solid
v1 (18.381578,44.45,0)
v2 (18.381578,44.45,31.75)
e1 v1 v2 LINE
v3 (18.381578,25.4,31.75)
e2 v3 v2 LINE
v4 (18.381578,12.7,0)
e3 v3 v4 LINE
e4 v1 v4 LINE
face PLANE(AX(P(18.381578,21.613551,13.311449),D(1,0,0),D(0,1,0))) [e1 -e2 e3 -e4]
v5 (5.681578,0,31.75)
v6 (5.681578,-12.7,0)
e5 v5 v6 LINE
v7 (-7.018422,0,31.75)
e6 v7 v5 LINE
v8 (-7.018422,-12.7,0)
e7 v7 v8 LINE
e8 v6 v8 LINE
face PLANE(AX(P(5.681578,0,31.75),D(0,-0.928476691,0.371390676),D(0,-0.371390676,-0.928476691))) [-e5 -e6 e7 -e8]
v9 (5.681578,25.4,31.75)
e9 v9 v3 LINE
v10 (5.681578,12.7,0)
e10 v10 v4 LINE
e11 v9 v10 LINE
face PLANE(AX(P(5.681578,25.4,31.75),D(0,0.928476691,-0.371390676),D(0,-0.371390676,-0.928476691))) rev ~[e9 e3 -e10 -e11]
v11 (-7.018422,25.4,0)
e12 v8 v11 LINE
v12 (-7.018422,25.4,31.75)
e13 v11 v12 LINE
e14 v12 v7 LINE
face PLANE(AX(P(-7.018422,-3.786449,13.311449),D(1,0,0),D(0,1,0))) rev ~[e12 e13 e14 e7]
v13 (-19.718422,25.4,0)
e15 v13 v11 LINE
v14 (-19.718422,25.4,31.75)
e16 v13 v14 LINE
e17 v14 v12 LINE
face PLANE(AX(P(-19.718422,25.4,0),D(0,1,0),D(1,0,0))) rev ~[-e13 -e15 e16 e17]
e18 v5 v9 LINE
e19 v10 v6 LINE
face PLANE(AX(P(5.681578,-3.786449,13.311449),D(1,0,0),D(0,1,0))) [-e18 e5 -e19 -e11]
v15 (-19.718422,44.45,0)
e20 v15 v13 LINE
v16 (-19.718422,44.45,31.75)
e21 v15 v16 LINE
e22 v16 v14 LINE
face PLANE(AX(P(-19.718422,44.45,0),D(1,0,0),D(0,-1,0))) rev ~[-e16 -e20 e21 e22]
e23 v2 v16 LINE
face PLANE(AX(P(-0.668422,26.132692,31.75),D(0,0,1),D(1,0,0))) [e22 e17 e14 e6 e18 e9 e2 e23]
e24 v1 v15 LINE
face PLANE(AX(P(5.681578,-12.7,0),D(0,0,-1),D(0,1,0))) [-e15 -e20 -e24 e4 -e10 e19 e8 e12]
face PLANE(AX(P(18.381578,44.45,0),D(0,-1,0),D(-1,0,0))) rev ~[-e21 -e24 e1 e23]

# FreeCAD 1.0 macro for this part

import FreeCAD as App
import Part
import Sketcher

V = App.Vector
Q = App.Units.Quantity


def add_polygon(sketch, points):
    """Adds a closed chain of lines whose ends are joined by coincident constraints."""
    first, n = sketch.GeometryCount, len(points)
    for a, b in zip(points, points[1:] + points[:1]):
        sketch.addGeometry(Part.LineSegment(App.Vector(*a, 0), App.Vector(*b, 0)), False)
    for i in range(n):
        sketch.addConstraint(Sketcher.Constraint("Coincident", first + i, 2, first + (i + 1) % n, 1))

doc = App.newDocument("Part")
body = doc.addObject("PartDesign::Body", "Body")

# Sketch on XY plane
sketch1 = body.newObject("Sketcher::SketchObject", "Sketch")
sketch1.AttachmentSupport = (doc.getObject("XY_Plane"), [""])
sketch1.MapMode = "FlatFace"
add_polygon(sketch1, [(18, 44), (-20, 44), (-20, 25), (-7, 25), (-7, 0), (6, 0), (6, 25), (18, 25)])  # lines 0-7
sketch1.addConstraint([
    Sketcher.Constraint("Horizontal", 0),
    Sketcher.Constraint("Vertical", 1),
    Sketcher.Constraint("Horizontal", 2),
    Sketcher.Constraint("Vertical", 3),
    Sketcher.Constraint("Horizontal", 4),
    Sketcher.Constraint("Vertical", 5),
    Sketcher.Constraint("Horizontal", 6),
    Sketcher.Constraint("Vertical", 7),
    Sketcher.Constraint("PointOnObject", 3, 2, -1),
    Sketcher.Constraint("Horizontal", 2, 2, 5, 2),
    Sketcher.Constraint("Equal", 2, 4),
    Sketcher.Constraint("Equal", 4, 6),
    Sketcher.Constraint("DistanceY", 3, 2, 3, 1, Q("1 in")),
    Sketcher.Constraint("DistanceX", 0, 2, 0, 1, Q("1.5 in")),
    Sketcher.Constraint("DistanceY", 1, 2, 1, 1, Q("0.75 in")),
    Sketcher.Constraint("DistanceX", -1, 1, 6, 2, 18.381578),
])
pad1 = body.newObject("PartDesign::Pad", "Pad")
pad1.Profile = sketch1
pad1.Length = Q("1.25 in")

# Sketch on YZ plane
sketch2 = body.newObject("Sketcher::SketchObject", "Sketch001")
sketch2.AttachmentSupport = (doc.getObject("YZ_Plane"), [""])
sketch2.MapMode = "FlatFace"
sketch2.AttachmentOffset = App.Placement(V(0, 0, 5.681578), App.Rotation())
add_polygon(sketch2, [(13, 0), (25, 0), (25, 32)])  # lines 0-2
sketch2.addConstraint([
    Sketcher.Constraint("Horizontal", 0),
    Sketcher.Constraint("Vertical", 1),
    Sketcher.Constraint("PointOnObject", 0, 2, -1),
    Sketcher.Constraint("DistanceX", 0, 1, 0, 2, Q("0.5 in")),
    Sketcher.Constraint("DistanceX", -1, 1, 0, 2, Q("1 in")),
    Sketcher.Constraint("DistanceY", 1, 1, 1, 2, Q("1.25 in")),
])
pad2 = body.newObject("PartDesign::Pad", "Pad001")
pad2.Profile = sketch2
pad2.Length = Q("0.5 in")

# Sketch on YZ plane
sketch3 = body.newObject("Sketcher::SketchObject", "Sketch002")
sketch3.AttachmentSupport = (doc.getObject("YZ_Plane"), [""])
sketch3.MapMode = "FlatFace"
sketch3.AttachmentOffset = App.Placement(V(0, 0, 5.681578), App.Rotation())
add_polygon(sketch3, [(-13, 0), (0, 0), (0, 32)])  # lines 0-2
sketch3.addConstraint([
    Sketcher.Constraint("Horizontal", 0),
    Sketcher.Constraint("Vertical", 1),
    Sketcher.Constraint("Coincident", 0, 2, -1, 1),
    Sketcher.Constraint("DistanceX", 0, 1, 0, 2, Q("0.5 in")),
    Sketcher.Constraint("DistanceY", 1, 1, 1, 2, Q("1.25 in")),
])
pad3 = body.newObject("PartDesign::Pad", "Pad002")
pad3.Profile = sketch3
pad3.Length = Q("0.5 in")
pad3.Reversed = True

doc.recompute()
